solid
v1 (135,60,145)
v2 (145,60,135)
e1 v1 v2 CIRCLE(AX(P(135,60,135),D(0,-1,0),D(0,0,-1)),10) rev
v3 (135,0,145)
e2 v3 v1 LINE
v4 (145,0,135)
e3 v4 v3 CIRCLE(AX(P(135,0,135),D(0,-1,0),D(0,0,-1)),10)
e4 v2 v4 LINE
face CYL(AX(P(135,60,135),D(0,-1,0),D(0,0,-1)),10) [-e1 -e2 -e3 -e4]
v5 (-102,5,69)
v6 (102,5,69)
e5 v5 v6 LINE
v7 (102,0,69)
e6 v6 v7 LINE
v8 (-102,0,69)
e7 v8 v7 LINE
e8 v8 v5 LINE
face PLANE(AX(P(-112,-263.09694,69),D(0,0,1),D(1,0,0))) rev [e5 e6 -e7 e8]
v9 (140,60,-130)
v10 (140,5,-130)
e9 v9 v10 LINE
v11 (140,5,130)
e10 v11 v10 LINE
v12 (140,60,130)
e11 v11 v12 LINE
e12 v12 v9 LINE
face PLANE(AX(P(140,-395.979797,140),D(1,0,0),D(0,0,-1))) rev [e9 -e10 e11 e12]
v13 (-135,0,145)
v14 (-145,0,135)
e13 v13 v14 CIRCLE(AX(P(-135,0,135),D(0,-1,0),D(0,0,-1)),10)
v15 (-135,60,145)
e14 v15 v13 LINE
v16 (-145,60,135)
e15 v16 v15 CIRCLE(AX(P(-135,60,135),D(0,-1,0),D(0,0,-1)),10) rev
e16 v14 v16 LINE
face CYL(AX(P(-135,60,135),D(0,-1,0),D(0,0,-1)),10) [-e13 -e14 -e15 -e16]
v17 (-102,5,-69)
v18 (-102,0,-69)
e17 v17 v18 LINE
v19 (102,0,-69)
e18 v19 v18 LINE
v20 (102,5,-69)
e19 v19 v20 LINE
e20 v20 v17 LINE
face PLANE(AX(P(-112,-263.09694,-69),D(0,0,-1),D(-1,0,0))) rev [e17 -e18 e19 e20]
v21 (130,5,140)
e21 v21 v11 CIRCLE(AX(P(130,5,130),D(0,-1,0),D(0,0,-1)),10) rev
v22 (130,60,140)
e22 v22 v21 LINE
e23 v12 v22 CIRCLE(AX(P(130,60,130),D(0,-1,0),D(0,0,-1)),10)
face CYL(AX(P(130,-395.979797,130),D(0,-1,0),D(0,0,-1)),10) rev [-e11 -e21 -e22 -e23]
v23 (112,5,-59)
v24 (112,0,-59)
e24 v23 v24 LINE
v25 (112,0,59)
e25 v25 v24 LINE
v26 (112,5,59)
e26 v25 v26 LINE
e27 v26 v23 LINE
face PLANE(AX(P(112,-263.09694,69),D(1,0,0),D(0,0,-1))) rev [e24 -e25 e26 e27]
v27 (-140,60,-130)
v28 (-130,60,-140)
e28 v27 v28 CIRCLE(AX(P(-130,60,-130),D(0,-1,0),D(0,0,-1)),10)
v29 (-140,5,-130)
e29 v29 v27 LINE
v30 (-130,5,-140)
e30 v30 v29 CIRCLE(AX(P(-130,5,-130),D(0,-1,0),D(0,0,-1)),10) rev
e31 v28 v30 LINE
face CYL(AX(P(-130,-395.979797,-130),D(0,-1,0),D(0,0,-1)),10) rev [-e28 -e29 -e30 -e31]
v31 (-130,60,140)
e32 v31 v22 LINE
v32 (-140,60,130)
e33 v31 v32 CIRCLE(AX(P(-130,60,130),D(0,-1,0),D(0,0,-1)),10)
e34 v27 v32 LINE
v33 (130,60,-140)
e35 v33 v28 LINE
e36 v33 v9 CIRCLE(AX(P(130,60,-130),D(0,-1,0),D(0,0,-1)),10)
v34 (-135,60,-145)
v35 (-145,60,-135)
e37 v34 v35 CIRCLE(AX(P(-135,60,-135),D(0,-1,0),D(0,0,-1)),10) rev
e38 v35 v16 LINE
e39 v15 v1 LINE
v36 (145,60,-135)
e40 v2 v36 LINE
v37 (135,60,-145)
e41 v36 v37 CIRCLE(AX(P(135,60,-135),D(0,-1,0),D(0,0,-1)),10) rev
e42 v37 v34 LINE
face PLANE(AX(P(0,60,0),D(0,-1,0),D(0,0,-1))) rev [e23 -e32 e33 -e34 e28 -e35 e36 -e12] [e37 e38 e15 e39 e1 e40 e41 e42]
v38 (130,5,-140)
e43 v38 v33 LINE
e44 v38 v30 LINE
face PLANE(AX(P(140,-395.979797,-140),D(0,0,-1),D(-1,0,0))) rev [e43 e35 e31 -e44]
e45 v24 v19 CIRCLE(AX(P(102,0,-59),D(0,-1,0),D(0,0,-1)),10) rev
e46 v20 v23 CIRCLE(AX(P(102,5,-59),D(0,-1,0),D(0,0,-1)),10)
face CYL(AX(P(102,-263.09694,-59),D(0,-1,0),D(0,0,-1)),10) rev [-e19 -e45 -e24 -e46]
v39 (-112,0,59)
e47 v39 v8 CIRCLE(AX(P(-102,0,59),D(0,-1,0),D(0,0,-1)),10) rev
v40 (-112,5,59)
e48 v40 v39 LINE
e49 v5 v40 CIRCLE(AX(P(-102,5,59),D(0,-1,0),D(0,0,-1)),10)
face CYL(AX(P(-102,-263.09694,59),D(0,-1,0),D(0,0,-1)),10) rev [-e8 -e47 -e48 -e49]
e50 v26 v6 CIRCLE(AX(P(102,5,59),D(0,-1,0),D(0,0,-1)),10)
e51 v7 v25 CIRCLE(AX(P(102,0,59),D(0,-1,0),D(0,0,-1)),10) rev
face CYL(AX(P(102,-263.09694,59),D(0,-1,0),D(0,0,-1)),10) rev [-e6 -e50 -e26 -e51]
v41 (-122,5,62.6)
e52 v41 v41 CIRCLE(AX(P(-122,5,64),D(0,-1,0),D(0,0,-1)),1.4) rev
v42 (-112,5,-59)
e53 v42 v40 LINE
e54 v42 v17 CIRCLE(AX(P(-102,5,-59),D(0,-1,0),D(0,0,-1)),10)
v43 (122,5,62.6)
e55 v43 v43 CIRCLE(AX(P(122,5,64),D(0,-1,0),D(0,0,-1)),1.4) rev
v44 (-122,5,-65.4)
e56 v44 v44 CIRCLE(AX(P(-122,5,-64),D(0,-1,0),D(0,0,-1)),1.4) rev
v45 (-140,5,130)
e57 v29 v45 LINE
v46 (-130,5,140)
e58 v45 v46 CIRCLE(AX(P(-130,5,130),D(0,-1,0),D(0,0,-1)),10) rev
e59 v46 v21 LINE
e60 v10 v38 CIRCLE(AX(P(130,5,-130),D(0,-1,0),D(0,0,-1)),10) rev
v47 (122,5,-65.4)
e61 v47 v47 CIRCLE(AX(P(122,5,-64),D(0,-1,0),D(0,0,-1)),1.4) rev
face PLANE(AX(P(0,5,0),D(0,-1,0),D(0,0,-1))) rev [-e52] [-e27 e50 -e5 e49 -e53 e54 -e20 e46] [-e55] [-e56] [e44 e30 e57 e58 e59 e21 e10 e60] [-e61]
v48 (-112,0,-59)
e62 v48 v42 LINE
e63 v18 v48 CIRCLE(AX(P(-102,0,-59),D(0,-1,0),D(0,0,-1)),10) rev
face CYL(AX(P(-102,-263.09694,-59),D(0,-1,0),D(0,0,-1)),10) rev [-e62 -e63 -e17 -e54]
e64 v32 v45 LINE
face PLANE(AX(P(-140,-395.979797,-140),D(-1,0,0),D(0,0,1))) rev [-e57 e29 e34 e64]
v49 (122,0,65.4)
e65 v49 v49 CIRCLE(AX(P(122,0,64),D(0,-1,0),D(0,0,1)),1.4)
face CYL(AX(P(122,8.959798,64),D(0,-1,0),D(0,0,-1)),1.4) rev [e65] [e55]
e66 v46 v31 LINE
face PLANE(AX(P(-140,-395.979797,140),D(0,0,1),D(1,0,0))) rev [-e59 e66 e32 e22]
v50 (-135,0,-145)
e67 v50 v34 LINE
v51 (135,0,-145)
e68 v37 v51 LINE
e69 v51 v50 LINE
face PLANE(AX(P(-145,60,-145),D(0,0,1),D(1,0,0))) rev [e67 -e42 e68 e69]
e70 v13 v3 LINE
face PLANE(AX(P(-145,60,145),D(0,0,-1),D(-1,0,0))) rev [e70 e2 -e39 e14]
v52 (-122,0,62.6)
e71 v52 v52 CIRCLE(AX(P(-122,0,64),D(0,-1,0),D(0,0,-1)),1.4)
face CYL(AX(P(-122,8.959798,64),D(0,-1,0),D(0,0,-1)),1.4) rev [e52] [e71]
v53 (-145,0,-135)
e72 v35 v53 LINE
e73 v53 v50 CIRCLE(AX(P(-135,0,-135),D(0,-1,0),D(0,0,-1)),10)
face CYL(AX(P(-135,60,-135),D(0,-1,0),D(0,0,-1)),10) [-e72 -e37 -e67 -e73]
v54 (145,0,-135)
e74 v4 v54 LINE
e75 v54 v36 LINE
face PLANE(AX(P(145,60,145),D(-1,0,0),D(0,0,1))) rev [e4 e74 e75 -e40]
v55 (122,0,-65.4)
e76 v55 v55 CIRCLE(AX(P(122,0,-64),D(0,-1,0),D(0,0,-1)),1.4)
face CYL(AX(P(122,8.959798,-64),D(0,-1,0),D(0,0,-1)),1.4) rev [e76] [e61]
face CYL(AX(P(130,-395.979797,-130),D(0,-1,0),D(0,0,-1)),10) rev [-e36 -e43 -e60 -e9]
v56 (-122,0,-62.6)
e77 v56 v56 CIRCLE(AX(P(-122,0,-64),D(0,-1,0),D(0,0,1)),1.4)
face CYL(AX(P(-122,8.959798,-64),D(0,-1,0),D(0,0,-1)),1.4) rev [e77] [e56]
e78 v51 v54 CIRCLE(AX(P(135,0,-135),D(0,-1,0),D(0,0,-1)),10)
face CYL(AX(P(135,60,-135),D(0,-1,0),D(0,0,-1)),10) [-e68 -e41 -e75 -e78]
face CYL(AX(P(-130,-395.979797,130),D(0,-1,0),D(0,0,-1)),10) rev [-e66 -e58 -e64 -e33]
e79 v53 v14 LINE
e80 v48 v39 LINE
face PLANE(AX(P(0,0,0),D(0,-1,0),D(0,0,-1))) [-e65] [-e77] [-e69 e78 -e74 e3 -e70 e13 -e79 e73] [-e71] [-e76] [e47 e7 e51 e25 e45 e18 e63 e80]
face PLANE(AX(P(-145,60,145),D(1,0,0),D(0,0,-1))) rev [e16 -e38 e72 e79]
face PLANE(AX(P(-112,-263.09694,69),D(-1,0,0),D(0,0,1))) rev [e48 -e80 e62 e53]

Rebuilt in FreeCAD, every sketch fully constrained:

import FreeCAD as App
import Part
import Sketcher

V = App.Vector


def edges_at(feature, points):
    """Names of the edges that pass closest to the given points."""
    edges = feature.Shape.Edges
    near = lambda p: min(range(len(edges)), key=lambda i: edges[i].distToShape(Part.Vertex(*p))[0])
    return sorted({f"Edge{near(p) + 1}" for p in points})

doc = App.newDocument("Part")
body = doc.addObject("PartDesign::Body", "Body")

# Sketch on XZ plane
sketch1 = body.newObject("Sketcher::SketchObject", "Sketch")
sketch1.AttachmentSupport = (doc.getObject("XZ_Plane"), [""])
sketch1.MapMode = "FlatFace"
sketch1.addGeometry([
    Part.LineSegment(V(-145, -145, 0), V(-145, 145, 0)),
    Part.LineSegment(V(-145, 145, 0), V(145, 145, 0)),
    Part.LineSegment(V(145, 145, 0), V(145, -145, 0)),
    Part.LineSegment(V(145, -145, 0), V(-145, -145, 0)),
], False)
sketch1.addConstraint([
    Sketcher.Constraint("Coincident", 0, 2, 1, 1),
    Sketcher.Constraint("Coincident", 1, 2, 2, 1),
    Sketcher.Constraint("Coincident", 2, 2, 3, 1),
    Sketcher.Constraint("Coincident", 3, 2, 0, 1),
    Sketcher.Constraint("Vertical", 0),
    Sketcher.Constraint("Horizontal", 1),
    Sketcher.Constraint("Vertical", 2),
    Sketcher.Constraint("Horizontal", 3),
    Sketcher.Constraint("Symmetric", 0, 2, 2, 2, -1, 1),
    Sketcher.Constraint("Equal", 3, 0),
    Sketcher.Constraint("DistanceX", 1, 1, 1, 2, 290.0),
])
pad1 = body.newObject("PartDesign::Pad", "Pad")
pad1.Profile = sketch1
pad1.Length = 60
pad1.Reversed = True

# Sketch on XZ plane
sketch2 = body.newObject("Sketcher::SketchObject", "Sketch001")
sketch2.AttachmentSupport = (doc.getObject("XZ_Plane"), [""])
sketch2.MapMode = "FlatFace"
sketch2.AttachmentOffset = App.Placement(V(0, 0, -60), App.Rotation())
sketch2.addGeometry([
    Part.LineSegment(V(-140, -140, 0), V(-140, 140, 0)),
    Part.LineSegment(V(-140, 140, 0), V(140, 140, 0)),
    Part.LineSegment(V(140, 140, 0), V(140, -140, 0)),
    Part.LineSegment(V(140, -140, 0), V(-140, -140, 0)),
], False)
sketch2.addConstraint([
    Sketcher.Constraint("Coincident", 0, 2, 1, 1),
    Sketcher.Constraint("Coincident", 1, 2, 2, 1),
    Sketcher.Constraint("Coincident", 2, 2, 3, 1),
    Sketcher.Constraint("Coincident", 3, 2, 0, 1),
    Sketcher.Constraint("Vertical", 0),
    Sketcher.Constraint("Horizontal", 1),
    Sketcher.Constraint("Vertical", 2),
    Sketcher.Constraint("Horizontal", 3),
    Sketcher.Constraint("Symmetric", 0, 2, 2, 2, -1, 1),
    Sketcher.Constraint("Equal", 3, 0),
    Sketcher.Constraint("DistanceX", 1, 1, 1, 2, 280.0),
])
pocket1 = body.newObject("PartDesign::Pocket", "Pocket")
pocket1.Profile = sketch2
pocket1.Length = 55
pocket1.Reversed = True

# Sketch on XZ plane
sketch3 = body.newObject("Sketcher::SketchObject", "Sketch002")
sketch3.AttachmentSupport = (doc.getObject("XZ_Plane"), [""])
sketch3.MapMode = "FlatFace"
sketch3.AttachmentOffset = App.Placement(V(0, 0, -5), App.Rotation())
sketch3.addGeometry([
    Part.LineSegment(V(-112, -69, 0), V(-112, 69, 0)),
    Part.LineSegment(V(-112, 69, 0), V(112, 69, 0)),
    Part.LineSegment(V(112, 69, 0), V(112, -69, 0)),
    Part.LineSegment(V(112, -69, 0), V(-112, -69, 0)),
], False)
sketch3.addConstraint([
    Sketcher.Constraint("Coincident", 0, 2, 1, 1),
    Sketcher.Constraint("Coincident", 1, 2, 2, 1),
    Sketcher.Constraint("Coincident", 2, 2, 3, 1),
    Sketcher.Constraint("Coincident", 3, 2, 0, 1),
    Sketcher.Constraint("Vertical", 0),
    Sketcher.Constraint("Horizontal", 1),
    Sketcher.Constraint("Vertical", 2),
    Sketcher.Constraint("Horizontal", 3),
    Sketcher.Constraint("Symmetric", 0, 2, 2, 2, -1, 1),
    Sketcher.Constraint("DistanceX", 1, 1, 1, 2, 224.0),
    Sketcher.Constraint("DistanceY", 0, 1, 0, 2, 138.0),
])
pocket2 = body.newObject("PartDesign::Pocket", "Pocket001")
pocket2.Profile = sketch3
pocket2.Length = 5
pocket2.Reversed = True

# Sketch on XZ plane
sketch4 = body.newObject("Sketcher::SketchObject", "Sketch003")
sketch4.AttachmentSupport = (doc.getObject("XZ_Plane"), [""])
sketch4.MapMode = "FlatFace"
sketch4.addGeometry([
    Part.Circle(V(-122, 64, 0), V(0, 0, 1), 1.4),
    Part.Circle(V(122, 64, 0), V(0, 0, 1), 1.4),
    Part.Circle(V(122, -64, 0), V(0, 0, 1), 1.4),
    Part.Circle(V(-122, -64, 0), V(0, 0, 1), 1.4),
], False)
sketch4.addConstraint([
    Sketcher.Constraint("Equal", 0, 1),
    Sketcher.Constraint("Equal", 1, 2),
    Sketcher.Constraint("Equal", 2, 3),
    Sketcher.Constraint("Symmetric", 0, 3, 2, 3, -1, 1),
    Sketcher.Constraint("Symmetric", 1, 3, 3, 3, -1, 1),
    Sketcher.Constraint("Symmetric", 0, 3, 1, 3, -2),
    Sketcher.Constraint("Diameter", 0, 2.8),
    Sketcher.Constraint("DistanceX", 0, 3, -1, 1, 122.0),
    Sketcher.Constraint("DistanceY", -1, 1, 0, 3, 64.0),
])
pocket3 = body.newObject("PartDesign::Pocket", "Pocket002")
pocket3.Profile = sketch4
pocket3.Length = 5
doc.recompute()

fillet = body.newObject("PartDesign::Fillet", "Fillet")
fillet.Base = (pocket3, edges_at(pocket3, [
    (140, 32.5, -140),
    (-140, 32.5, -140),
    (-140, 32.5, 140),
    (140, 32.5, 140),
    (145, 30, 145),
    (-145, 30, 145),
    (-145, 30, -145),
    (145, 30, -145),
]))
fillet.Radius = 10
doc.recompute()

fillet2 = body.newObject("PartDesign::Fillet", "Fillet001")
fillet2.Base = (fillet, edges_at(fillet, [
    (-112, 2.5, -69),
    (-112, 2.5, 69),
    (112, 2.5, 69),
    (112, 2.5, -69),
]))
fillet2.Radius = 10

doc.recompute()
